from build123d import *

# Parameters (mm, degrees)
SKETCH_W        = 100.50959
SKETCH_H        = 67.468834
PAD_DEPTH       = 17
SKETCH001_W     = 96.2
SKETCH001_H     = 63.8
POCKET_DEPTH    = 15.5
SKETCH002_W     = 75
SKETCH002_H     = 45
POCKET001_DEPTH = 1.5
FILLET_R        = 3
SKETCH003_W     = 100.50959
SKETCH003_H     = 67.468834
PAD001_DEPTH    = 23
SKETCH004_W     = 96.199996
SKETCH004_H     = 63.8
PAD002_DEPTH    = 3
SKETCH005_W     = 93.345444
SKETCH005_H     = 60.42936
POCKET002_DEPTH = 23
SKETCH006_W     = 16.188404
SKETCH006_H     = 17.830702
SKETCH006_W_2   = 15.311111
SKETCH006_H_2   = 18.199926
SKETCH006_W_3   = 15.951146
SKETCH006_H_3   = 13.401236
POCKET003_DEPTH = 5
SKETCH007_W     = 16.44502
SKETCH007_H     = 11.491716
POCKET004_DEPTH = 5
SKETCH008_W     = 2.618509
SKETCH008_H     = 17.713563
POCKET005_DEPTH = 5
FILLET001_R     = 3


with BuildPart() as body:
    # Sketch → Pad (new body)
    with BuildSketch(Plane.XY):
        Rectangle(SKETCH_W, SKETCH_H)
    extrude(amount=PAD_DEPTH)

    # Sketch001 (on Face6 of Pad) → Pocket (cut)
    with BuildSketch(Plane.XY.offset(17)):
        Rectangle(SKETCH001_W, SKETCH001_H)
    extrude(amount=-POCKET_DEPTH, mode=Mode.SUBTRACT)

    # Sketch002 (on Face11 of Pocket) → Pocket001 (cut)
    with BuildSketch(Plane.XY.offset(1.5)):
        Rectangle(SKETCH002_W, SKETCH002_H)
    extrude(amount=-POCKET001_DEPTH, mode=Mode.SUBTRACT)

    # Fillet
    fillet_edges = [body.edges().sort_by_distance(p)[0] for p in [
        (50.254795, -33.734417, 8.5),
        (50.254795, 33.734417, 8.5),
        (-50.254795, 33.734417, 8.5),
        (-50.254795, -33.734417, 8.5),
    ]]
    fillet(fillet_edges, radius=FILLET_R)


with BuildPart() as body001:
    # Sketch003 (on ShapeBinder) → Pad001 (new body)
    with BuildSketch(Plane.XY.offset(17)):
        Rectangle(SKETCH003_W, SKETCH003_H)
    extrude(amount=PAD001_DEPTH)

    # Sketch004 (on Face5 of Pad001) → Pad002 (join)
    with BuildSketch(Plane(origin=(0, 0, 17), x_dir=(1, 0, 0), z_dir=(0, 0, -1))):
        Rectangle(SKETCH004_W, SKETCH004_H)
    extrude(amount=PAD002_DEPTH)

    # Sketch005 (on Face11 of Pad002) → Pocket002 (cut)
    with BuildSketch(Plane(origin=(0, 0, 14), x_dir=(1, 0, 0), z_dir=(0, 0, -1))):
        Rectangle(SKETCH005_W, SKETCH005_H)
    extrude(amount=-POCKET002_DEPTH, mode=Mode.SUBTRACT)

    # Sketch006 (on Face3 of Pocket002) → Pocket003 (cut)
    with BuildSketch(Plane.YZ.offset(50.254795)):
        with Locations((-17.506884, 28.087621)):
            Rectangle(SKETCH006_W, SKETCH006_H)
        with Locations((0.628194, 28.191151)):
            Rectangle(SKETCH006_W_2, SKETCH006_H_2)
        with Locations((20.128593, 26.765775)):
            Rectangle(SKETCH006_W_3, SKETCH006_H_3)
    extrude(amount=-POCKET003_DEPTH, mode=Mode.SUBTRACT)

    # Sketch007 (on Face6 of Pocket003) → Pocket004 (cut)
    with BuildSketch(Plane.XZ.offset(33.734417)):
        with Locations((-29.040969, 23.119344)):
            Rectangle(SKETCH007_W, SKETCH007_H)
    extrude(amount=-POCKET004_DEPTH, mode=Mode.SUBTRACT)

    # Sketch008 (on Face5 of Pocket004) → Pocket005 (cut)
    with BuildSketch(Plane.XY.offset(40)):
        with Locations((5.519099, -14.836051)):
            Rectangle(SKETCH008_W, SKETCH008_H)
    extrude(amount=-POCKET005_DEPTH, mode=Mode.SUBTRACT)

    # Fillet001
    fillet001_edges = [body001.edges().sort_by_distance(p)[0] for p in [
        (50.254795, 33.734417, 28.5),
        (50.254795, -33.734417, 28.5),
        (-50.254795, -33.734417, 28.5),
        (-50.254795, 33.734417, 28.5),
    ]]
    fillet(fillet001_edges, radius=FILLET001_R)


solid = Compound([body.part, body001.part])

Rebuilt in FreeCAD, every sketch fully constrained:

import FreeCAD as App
import Part
import Sketcher


def edges_at(feature, points):
    """Names of the edges that pass closest to the given points."""
    edges = feature.Shape.Edges
    near = lambda p: min(range(len(edges)), key=lambda i: edges[i].distToShape(Part.Vertex(*p))[0])
    return sorted({f"Edge{near(p) + 1}" for p in points})

doc = App.newDocument("Part")
params = doc.addObject("Spreadsheet::Sheet", "Params")
for row, (alias, value) in enumerate([
    ("pad1_length", "17 mm"),
    ("sketch2_width", "96.2 mm"),
    ("sketch2_height", "63.8 mm"),
    ("pocket1_length", "15.5 mm"),
    ("sketch3_width", "75 mm"),
    ("sketch3_height", "45 mm"),
    ("pocket2_length", "1.5 mm"),
    ("fillet_radius", "3 mm"),
    ("pad2_length", "23 mm"),
    ("sketch5_height", "63.8 mm"),
    ("pad3_length", "3 mm"),
    ("pocket3_length", "23 mm"),
    ("pocket4_length", "5 mm"),
    ("pocket5_length", "5 mm"),
    ("pocket6_length", "5 mm"),
    ("fillet2_radius", "3 mm"),
], start=1):
    params.set(f"A{row}", alias)
    params.set(f"B{row}", "=" + value)
    params.setAlias(f"B{row}", alias)

body = doc.addObject("PartDesign::Body", "Body")

# Sketch on XY plane
sketch1 = body.newObject("Sketcher::SketchObject", "Sketch")
sketch1.AttachmentSupport = (doc.getObject("XY_Plane"), [""])
sketch1.MapMode = "FlatFace"
sketch1.addGeometry([
    Part.LineSegment(App.Vector(-50, 34, 0), App.Vector(-50, -34, 0)),
    Part.LineSegment(App.Vector(-50, -34, 0), App.Vector(50, -34, 0)),
    Part.LineSegment(App.Vector(50, -34, 0), App.Vector(50, 34, 0)),
    Part.LineSegment(App.Vector(50, 34, 0), App.Vector(-50, 34, 0)),
], False)
sketch1.addConstraint([
    Sketcher.Constraint("Coincident", 0, 2, 1, 1),
    Sketcher.Constraint("Coincident", 1, 2, 2, 1),
    Sketcher.Constraint("Coincident", 2, 2, 3, 1),
    Sketcher.Constraint("Coincident", 3, 2, 0, 1),
    Sketcher.Constraint("Vertical", 0),
    Sketcher.Constraint("Horizontal", 1),
    Sketcher.Constraint("Vertical", 2),
    Sketcher.Constraint("Horizontal", 3),
    Sketcher.Constraint("Symmetric", 0, 2, 2, 2, -1, 1),
    Sketcher.Constraint("DistanceX", 1, 1, 1, 2, 100.50959),
    Sketcher.Constraint("DistanceY", 0, 2, 0, 1, 67.468834),
])
pad1 = body.newObject("PartDesign::Pad", "Pad")
pad1.Profile = sketch1
pad1.setExpression("Length", "Params.pad1_length")

# Sketch on XY plane
sketch2 = body.newObject("Sketcher::SketchObject", "Sketch001")
sketch2.AttachmentSupport = (doc.getObject("XY_Plane"), [""])
sketch2.MapMode = "FlatFace"
sketch2.AttachmentOffset = App.Placement(App.Vector(0, 0, 17), App.Rotation())
sketch2.addGeometry([
    Part.LineSegment(App.Vector(-48, 32, 0), App.Vector(-48, -32, 0)),
    Part.LineSegment(App.Vector(-48, -32, 0), App.Vector(48, -32, 0)),
    Part.LineSegment(App.Vector(48, -32, 0), App.Vector(48, 32, 0)),
    Part.LineSegment(App.Vector(48, 32, 0), App.Vector(-48, 32, 0)),
], False)
sketch2.addConstraint([
    Sketcher.Constraint("Coincident", 0, 2, 1, 1),
    Sketcher.Constraint("Coincident", 1, 2, 2, 1),
    Sketcher.Constraint("Coincident", 2, 2, 3, 1),
    Sketcher.Constraint("Coincident", 3, 2, 0, 1),
    Sketcher.Constraint("Vertical", 0),
    Sketcher.Constraint("Horizontal", 1),
    Sketcher.Constraint("Vertical", 2),
    Sketcher.Constraint("Horizontal", 3),
    Sketcher.Constraint("Symmetric", 0, 2, 2, 2, -1, 1),
    Sketcher.Constraint("DistanceX", 1, 1, 1, 2, 96.2),
    Sketcher.Constraint("DistanceY", 0, 2, 0, 1, 63.8),
])
sketch2.setExpression("Constraints[9]", "Params.sketch2_width")
sketch2.setExpression("Constraints[10]", "Params.sketch2_height")
pocket1 = body.newObject("PartDesign::Pocket", "Pocket")
pocket1.Profile = sketch2
pocket1.setExpression("Length", "Params.pocket1_length")

# Sketch on XY plane
sketch3 = body.newObject("Sketcher::SketchObject", "Sketch002")
sketch3.AttachmentSupport = (doc.getObject("XY_Plane"), [""])
sketch3.MapMode = "FlatFace"
sketch3.AttachmentOffset = App.Placement(App.Vector(0, 0, 1.5), App.Rotation())
sketch3.addGeometry([
    Part.LineSegment(App.Vector(-38, 22, 0), App.Vector(-38, -22, 0)),
    Part.LineSegment(App.Vector(-38, -22, 0), App.Vector(38, -22, 0)),
    Part.LineSegment(App.Vector(38, -22, 0), App.Vector(38, 22, 0)),
    Part.LineSegment(App.Vector(38, 22, 0), App.Vector(-38, 22, 0)),
], False)
sketch3.addConstraint([
    Sketcher.Constraint("Coincident", 0, 2, 1, 1),
    Sketcher.Constraint("Coincident", 1, 2, 2, 1),
    Sketcher.Constraint("Coincident", 2, 2, 3, 1),
    Sketcher.Constraint("Coincident", 3, 2, 0, 1),
    Sketcher.Constraint("Vertical", 0),
    Sketcher.Constraint("Horizontal", 1),
    Sketcher.Constraint("Vertical", 2),
    Sketcher.Constraint("Horizontal", 3),
    Sketcher.Constraint("Symmetric", 0, 2, 2, 2, -1, 1),
    Sketcher.Constraint("DistanceX", 1, 1, 1, 2, 75.0),
    Sketcher.Constraint("DistanceY", 0, 2, 0, 1, 45.0),
])
sketch3.setExpression("Constraints[9]", "Params.sketch3_width")
sketch3.setExpression("Constraints[10]", "Params.sketch3_height")
pocket2 = body.newObject("PartDesign::Pocket", "Pocket001")
pocket2.Profile = sketch3
pocket2.setExpression("Length", "Params.pocket2_length")
doc.recompute()

fillet = body.newObject("PartDesign::Fillet", "Fillet")
fillet.Base = (pocket2, edges_at(pocket2, [
    (50.255, -33.734, 8.5),
    (50.255, 33.734, 8.5),
    (-50.255, 33.734, 8.5),
    (-50.255, -33.734, 8.5),
]))
fillet.setExpression("Radius", "Params.fillet_radius")
body2 = doc.addObject("PartDesign::Body", "Body001")

# Sketch on XY plane
sketch4 = body2.newObject("Sketcher::SketchObject", "Sketch003")
sketch4.AttachmentSupport = (doc.getObject("XY_Plane001"), [""])
sketch4.MapMode = "FlatFace"
sketch4.AttachmentOffset = App.Placement(App.Vector(0, 0, 17), App.Rotation())
sketch4.addGeometry([
    Part.LineSegment(App.Vector(-50, 34, 0), App.Vector(-50, -34, 0)),
    Part.LineSegment(App.Vector(-50, -34, 0), App.Vector(50, -34, 0)),
    Part.LineSegment(App.Vector(50, -34, 0), App.Vector(50, 34, 0)),
    Part.LineSegment(App.Vector(50, 34, 0), App.Vector(-50, 34, 0)),
], False)
sketch4.addConstraint([
    Sketcher.Constraint("Coincident", 0, 2, 1, 1),
    Sketcher.Constraint("Coincident", 1, 2, 2, 1),
    Sketcher.Constraint("Coincident", 2, 2, 3, 1),
    Sketcher.Constraint("Coincident", 3, 2, 0, 1),
    Sketcher.Constraint("Vertical", 0),
    Sketcher.Constraint("Horizontal", 1),
    Sketcher.Constraint("Vertical", 2),
    Sketcher.Constraint("Horizontal", 3),
    Sketcher.Constraint("Symmetric", 0, 2, 2, 2, -1, 1),
    Sketcher.Constraint("DistanceX", 1, 1, 1, 2, 100.50959),
    Sketcher.Constraint("DistanceY", 0, 2, 0, 1, 67.468834),
])
pad2 = body2.newObject("PartDesign::Pad", "Pad001")
pad2.Profile = sketch4
pad2.setExpression("Length", "Params.pad2_length")

# Sketch on XY plane
sketch5 = body2.newObject("Sketcher::SketchObject", "Sketch004")
sketch5.AttachmentSupport = (doc.getObject("XY_Plane001"), [""])
sketch5.MapMode = "FlatFace"
sketch5.AttachmentOffset = App.Placement(App.Vector(0, 0, 17), App.Rotation())
sketch5.addGeometry([
    Part.LineSegment(App.Vector(-48, -32, 0), App.Vector(-48, 32, 0)),
    Part.LineSegment(App.Vector(-48, 32, 0), App.Vector(48, 32, 0)),
    Part.LineSegment(App.Vector(48, 32, 0), App.Vector(48, -32, 0)),
    Part.LineSegment(App.Vector(48, -32, 0), App.Vector(-48, -32, 0)),
], False)
sketch5.addConstraint([
    Sketcher.Constraint("Coincident", 0, 2, 1, 1),
    Sketcher.Constraint("Coincident", 1, 2, 2, 1),
    Sketcher.Constraint("Coincident", 2, 2, 3, 1),
    Sketcher.Constraint("Coincident", 3, 2, 0, 1),
    Sketcher.Constraint("Vertical", 0),
    Sketcher.Constraint("Horizontal", 1),
    Sketcher.Constraint("Vertical", 2),
    Sketcher.Constraint("Horizontal", 3),
    Sketcher.Constraint("Symmetric", 0, 2, 2, 2, -1, 1),
    Sketcher.Constraint("DistanceY", 0, 1, 0, 2, 63.8),
    Sketcher.Constraint("DistanceX", 1, 1, 1, 2, 96.199996),
])
sketch5.setExpression("Constraints[9]", "Params.sketch5_height")
pad3 = body2.newObject("PartDesign::Pad", "Pad002")
pad3.Profile = sketch5
pad3.setExpression("Length", "Params.pad3_length")
pad3.Reversed = True

# Sketch on XY plane
sketch6 = body2.newObject("Sketcher::SketchObject", "Sketch005")
sketch6.AttachmentSupport = (doc.getObject("XY_Plane001"), [""])
sketch6.MapMode = "FlatFace"
sketch6.AttachmentOffset = App.Placement(App.Vector(0, 0, 14), App.Rotation())
sketch6.addGeometry([
    Part.LineSegment(App.Vector(-47, -30, 0), App.Vector(-47, 30, 0)),
    Part.LineSegment(App.Vector(-47, 30, 0), App.Vector(47, 30, 0)),
    Part.LineSegment(App.Vector(47, 30, 0), App.Vector(47, -30, 0)),
    Part.LineSegment(App.Vector(47, -30, 0), App.Vector(-47, -30, 0)),
], False)
sketch6.addConstraint([
    Sketcher.Constraint("Coincident", 0, 2, 1, 1),
    Sketcher.Constraint("Coincident", 1, 2, 2, 1),
    Sketcher.Constraint("Coincident", 2, 2, 3, 1),
    Sketcher.Constraint("Coincident", 3, 2, 0, 1),
    Sketcher.Constraint("Vertical", 0),
    Sketcher.Constraint("Horizontal", 1),
    Sketcher.Constraint("Vertical", 2),
    Sketcher.Constraint("Horizontal", 3),
    Sketcher.Constraint("Symmetric", 0, 2, 2, 2, -1, 1),
    Sketcher.Constraint("DistanceY", 0, 1, 0, 2, 60.42936),
    Sketcher.Constraint("DistanceX", 1, 1, 1, 2, 93.345444),
])
pocket3 = body2.newObject("PartDesign::Pocket", "Pocket002")
pocket3.Profile = sketch6
pocket3.setExpression("Length", "Params.pocket3_length")
pocket3.Reversed = True

# Sketch on YZ plane
sketch7 = body2.newObject("Sketcher::SketchObject", "Sketch006")
sketch7.AttachmentSupport = (doc.getObject("YZ_Plane001"), [""])
sketch7.MapMode = "FlatFace"
sketch7.AttachmentOffset = App.Placement(App.Vector(0, 0, 50.254795), App.Rotation())
sketch7.addGeometry([
    Part.LineSegment(App.Vector(-26, 37, 0), App.Vector(-26, 19, 0)),  # 0
    Part.LineSegment(App.Vector(-26, 19, 0), App.Vector(-9, 19, 0)),  # 1
    Part.LineSegment(App.Vector(-9, 19, 0), App.Vector(-9, 37, 0)),  # 2
    Part.LineSegment(App.Vector(-9, 37, 0), App.Vector(-26, 37, 0)),  # 3
    Part.LineSegment(App.Vector(-7, 37, 0), App.Vector(-7, 19, 0)),  # 4
    Part.LineSegment(App.Vector(-7, 19, 0), App.Vector(8, 19, 0)),  # 5
    Part.LineSegment(App.Vector(8, 19, 0), App.Vector(8, 37, 0)),  # 6
    Part.LineSegment(App.Vector(8, 37, 0), App.Vector(-7, 37, 0)),  # 7
    Part.LineSegment(App.Vector(12, 33, 0), App.Vector(12, 20, 0)),  # 8
    Part.LineSegment(App.Vector(12, 20, 0), App.Vector(28, 20, 0)),  # 9
    Part.LineSegment(App.Vector(28, 20, 0), App.Vector(28, 33, 0)),  # 10
    Part.LineSegment(App.Vector(28, 33, 0), App.Vector(12, 33, 0)),  # 11
], False)
sketch7.addConstraint([
    Sketcher.Constraint("Coincident", 0, 2, 1, 1),
    Sketcher.Constraint("Coincident", 1, 2, 2, 1),
    Sketcher.Constraint("Coincident", 2, 2, 3, 1),
    Sketcher.Constraint("Coincident", 3, 2, 0, 1),
    Sketcher.Constraint("Coincident", 4, 2, 5, 1),
    Sketcher.Constraint("Coincident", 5, 2, 6, 1),
    Sketcher.Constraint("Coincident", 6, 2, 7, 1),
    Sketcher.Constraint("Coincident", 7, 2, 4, 1),
    Sketcher.Constraint("Coincident", 8, 2, 9, 1),
    Sketcher.Constraint("Coincident", 9, 2, 10, 1),
    Sketcher.Constraint("Coincident", 10, 2, 11, 1),
    Sketcher.Constraint("Coincident", 11, 2, 8, 1),
    Sketcher.Constraint("Vertical", 0),
    Sketcher.Constraint("Horizontal", 1),
    Sketcher.Constraint("Vertical", 2),
    Sketcher.Constraint("Horizontal", 3),
    Sketcher.Constraint("Vertical", 4),
    Sketcher.Constraint("Horizontal", 5),
    Sketcher.Constraint("Vertical", 6),
    Sketcher.Constraint("Horizontal", 7),
    Sketcher.Constraint("Vertical", 8),
    Sketcher.Constraint("Horizontal", 9),
    Sketcher.Constraint("Vertical", 10),
    Sketcher.Constraint("Horizontal", 11),
    Sketcher.Constraint("DistanceY", 0, 2, 0, 1, 17.830702),
    Sketcher.Constraint("DistanceX", 5, 1, 5, 2, 15.311111),
    Sketcher.Constraint("DistanceX", 1, 1, 1, 2, 16.188404),
    Sketcher.Constraint("DistanceX", 9, 1, 9, 2, 15.951146),
    Sketcher.Constraint("DistanceY", 4, 2, 4, 1, 18.199926),
    Sketcher.Constraint("DistanceY", 8, 2, 8, 1, 13.401236),
    Sketcher.Constraint("DistanceY", -1, 1, 0, 2, 19.17227),
    Sketcher.Constraint("DistanceX", 4, 2, -1, 1, 7.027361),
    Sketcher.Constraint("DistanceX", -1, 1, 8, 2, 12.15302),
    Sketcher.Constraint("DistanceX", 1, 2, 4, 2, 2.385321),
    Sketcher.Constraint("DistanceY", 5, 2, 8, 2, 0.973969),
    Sketcher.Constraint("DistanceY", -1, 1, 4, 2, 19.091188),
])
pocket4 = body2.newObject("PartDesign::Pocket", "Pocket003")
pocket4.Profile = sketch7
pocket4.setExpression("Length", "Params.pocket4_length")

# Sketch on XZ plane
sketch8 = body2.newObject("Sketcher::SketchObject", "Sketch007")
sketch8.AttachmentSupport = (doc.getObject("XZ_Plane001"), [""])
sketch8.MapMode = "FlatFace"
sketch8.AttachmentOffset = App.Placement(App.Vector(0, 0, 33.734417), App.Rotation())
sketch8.addGeometry([
    Part.LineSegment(App.Vector(-37, 29, 0), App.Vector(-37, 17, 0)),
    Part.LineSegment(App.Vector(-37, 17, 0), App.Vector(-21, 17, 0)),
    Part.LineSegment(App.Vector(-21, 17, 0), App.Vector(-21, 29, 0)),
    Part.LineSegment(App.Vector(-21, 29, 0), App.Vector(-37, 29, 0)),
], False)
sketch8.addConstraint([
    Sketcher.Constraint("Coincident", 0, 2, 1, 1),
    Sketcher.Constraint("Coincident", 1, 2, 2, 1),
    Sketcher.Constraint("Coincident", 2, 2, 3, 1),
    Sketcher.Constraint("Coincident", 3, 2, 0, 1),
    Sketcher.Constraint("Vertical", 0),
    Sketcher.Constraint("Horizontal", 1),
    Sketcher.Constraint("Vertical", 2),
    Sketcher.Constraint("Horizontal", 3),
    Sketcher.Constraint("DistanceX", 1, 1, 1, 2, 16.44502),
    Sketcher.Constraint("DistanceY", -1, 1, 2, 2, 28.865202),
    Sketcher.Constraint("DistanceY", 0, 2, 0, 1, 11.491716),
    Sketcher.Constraint("DistanceX", 0, 2, -1, 1, 37.263479),
])
pocket5 = body2.newObject("PartDesign::Pocket", "Pocket004")
pocket5.Profile = sketch8
pocket5.setExpression("Length", "Params.pocket5_length")

# Sketch on XY plane
sketch9 = body2.newObject("Sketcher::SketchObject", "Sketch008")
sketch9.AttachmentSupport = (doc.getObject("XY_Plane001"), [""])
sketch9.MapMode = "FlatFace"
sketch9.AttachmentOffset = App.Placement(App.Vector(0, 0, 40), App.Rotation())
sketch9.addGeometry([
    Part.LineSegment(App.Vector(4.2, -6, 0), App.Vector(4.2, -23.7, 0)),
    Part.LineSegment(App.Vector(4.2, -23.7, 0), App.Vector(6.8, -23.7, 0)),
    Part.LineSegment(App.Vector(6.8, -23.7, 0), App.Vector(6.8, -6, 0)),
    Part.LineSegment(App.Vector(6.8, -6, 0), App.Vector(4.2, -6, 0)),
], False)
sketch9.addConstraint([
    Sketcher.Constraint("Coincident", 0, 2, 1, 1),
    Sketcher.Constraint("Coincident", 1, 2, 2, 1),
    Sketcher.Constraint("Coincident", 2, 2, 3, 1),
    Sketcher.Constraint("Coincident", 3, 2, 0, 1),
    Sketcher.Constraint("Vertical", 0),
    Sketcher.Constraint("Horizontal", 1),
    Sketcher.Constraint("Vertical", 2),
    Sketcher.Constraint("Horizontal", 3),
    Sketcher.Constraint("DistanceX", 1, 1, 1, 2, 2.618509),
    Sketcher.Constraint("DistanceY", 0, 2, 0, 1, 17.713563),
    Sketcher.Constraint("DistanceY", 2, 2, -1, 1, 5.97927),
    Sketcher.Constraint("DistanceX", -1, 1, 0, 2, 4.209844),
])
pocket6 = body2.newObject("PartDesign::Pocket", "Pocket005")
pocket6.Profile = sketch9
pocket6.setExpression("Length", "Params.pocket6_length")
doc.recompute()

fillet2 = body2.newObject("PartDesign::Fillet", "Fillet001")
fillet2.Base = (pocket6, edges_at(pocket6, [
    (50.255, 33.734, 28.5),
    (50.255, -33.734, 28.5),
    (-50.255, -33.734, 28.5),
    (-50.255, 33.734, 28.5),
]))
fillet2.setExpression("Radius", "Params.fillet2_radius")

doc.recompute()
